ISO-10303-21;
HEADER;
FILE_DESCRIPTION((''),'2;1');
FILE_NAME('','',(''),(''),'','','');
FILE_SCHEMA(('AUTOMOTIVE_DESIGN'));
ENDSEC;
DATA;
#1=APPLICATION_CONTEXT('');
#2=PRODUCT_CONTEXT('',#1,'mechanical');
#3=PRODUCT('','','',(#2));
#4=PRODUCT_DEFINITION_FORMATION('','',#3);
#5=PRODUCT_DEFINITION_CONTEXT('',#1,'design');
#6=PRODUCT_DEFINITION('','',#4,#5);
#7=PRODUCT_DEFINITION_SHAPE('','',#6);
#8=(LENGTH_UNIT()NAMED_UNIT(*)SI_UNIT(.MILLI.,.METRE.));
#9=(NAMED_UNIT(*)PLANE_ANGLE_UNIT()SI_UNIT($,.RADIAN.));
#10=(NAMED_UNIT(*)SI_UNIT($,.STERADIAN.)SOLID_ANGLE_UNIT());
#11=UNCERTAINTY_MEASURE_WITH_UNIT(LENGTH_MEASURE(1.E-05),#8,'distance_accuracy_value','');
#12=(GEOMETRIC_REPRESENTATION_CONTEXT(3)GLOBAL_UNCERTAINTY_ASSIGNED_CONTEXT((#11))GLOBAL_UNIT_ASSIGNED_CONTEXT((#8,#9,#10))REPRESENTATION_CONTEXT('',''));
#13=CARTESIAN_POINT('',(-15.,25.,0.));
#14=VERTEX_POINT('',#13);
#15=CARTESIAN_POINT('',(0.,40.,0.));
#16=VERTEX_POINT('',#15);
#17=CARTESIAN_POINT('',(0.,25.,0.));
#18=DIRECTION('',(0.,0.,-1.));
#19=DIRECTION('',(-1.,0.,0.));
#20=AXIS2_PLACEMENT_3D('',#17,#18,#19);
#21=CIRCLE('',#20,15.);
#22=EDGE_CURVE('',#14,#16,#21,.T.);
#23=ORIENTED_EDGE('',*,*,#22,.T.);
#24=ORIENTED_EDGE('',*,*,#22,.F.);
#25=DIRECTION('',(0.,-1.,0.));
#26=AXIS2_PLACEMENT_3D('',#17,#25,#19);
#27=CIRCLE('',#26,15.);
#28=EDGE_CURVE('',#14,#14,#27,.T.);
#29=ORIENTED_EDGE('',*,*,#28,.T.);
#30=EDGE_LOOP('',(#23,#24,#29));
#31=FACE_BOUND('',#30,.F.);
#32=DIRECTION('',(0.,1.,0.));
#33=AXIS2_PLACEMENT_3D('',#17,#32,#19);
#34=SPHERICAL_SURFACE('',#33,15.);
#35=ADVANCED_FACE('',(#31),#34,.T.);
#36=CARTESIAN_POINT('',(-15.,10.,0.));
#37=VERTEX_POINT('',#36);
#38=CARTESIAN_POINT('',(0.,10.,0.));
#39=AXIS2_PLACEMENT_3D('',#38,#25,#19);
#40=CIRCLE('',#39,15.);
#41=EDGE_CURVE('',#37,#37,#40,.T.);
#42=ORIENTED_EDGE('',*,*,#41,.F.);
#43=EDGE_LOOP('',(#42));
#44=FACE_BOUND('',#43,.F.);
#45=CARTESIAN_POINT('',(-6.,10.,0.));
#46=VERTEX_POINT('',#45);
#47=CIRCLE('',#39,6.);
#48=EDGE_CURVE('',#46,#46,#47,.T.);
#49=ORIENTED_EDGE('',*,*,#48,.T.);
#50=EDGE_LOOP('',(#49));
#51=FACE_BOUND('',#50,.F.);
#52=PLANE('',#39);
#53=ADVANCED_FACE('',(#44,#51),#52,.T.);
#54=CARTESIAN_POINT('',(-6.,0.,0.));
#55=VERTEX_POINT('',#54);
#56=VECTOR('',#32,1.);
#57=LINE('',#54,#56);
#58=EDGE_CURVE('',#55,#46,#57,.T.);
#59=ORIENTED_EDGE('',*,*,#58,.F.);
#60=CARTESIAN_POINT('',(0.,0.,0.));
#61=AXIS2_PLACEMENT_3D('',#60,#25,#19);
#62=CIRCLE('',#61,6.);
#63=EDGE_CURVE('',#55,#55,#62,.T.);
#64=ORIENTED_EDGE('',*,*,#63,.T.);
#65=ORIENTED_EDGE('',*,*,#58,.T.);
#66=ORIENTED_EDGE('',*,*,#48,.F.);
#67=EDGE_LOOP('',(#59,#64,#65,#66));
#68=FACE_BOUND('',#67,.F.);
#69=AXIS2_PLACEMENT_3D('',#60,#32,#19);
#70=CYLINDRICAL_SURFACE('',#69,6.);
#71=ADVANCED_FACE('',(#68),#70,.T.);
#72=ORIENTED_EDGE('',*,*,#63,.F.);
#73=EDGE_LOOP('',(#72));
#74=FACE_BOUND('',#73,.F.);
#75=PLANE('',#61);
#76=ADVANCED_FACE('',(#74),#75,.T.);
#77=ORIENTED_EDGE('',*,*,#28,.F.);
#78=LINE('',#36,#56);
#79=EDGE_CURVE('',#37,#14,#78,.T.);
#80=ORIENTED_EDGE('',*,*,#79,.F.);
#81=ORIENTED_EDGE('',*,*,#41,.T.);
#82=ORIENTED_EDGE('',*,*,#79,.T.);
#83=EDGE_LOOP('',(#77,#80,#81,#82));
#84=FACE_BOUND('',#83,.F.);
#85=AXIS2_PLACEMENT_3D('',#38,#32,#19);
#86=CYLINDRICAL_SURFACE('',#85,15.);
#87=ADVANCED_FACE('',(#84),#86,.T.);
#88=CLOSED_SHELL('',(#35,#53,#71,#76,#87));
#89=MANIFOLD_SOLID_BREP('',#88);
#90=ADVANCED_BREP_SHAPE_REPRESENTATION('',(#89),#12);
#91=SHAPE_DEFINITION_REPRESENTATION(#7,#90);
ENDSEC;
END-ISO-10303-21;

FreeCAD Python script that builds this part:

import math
import FreeCAD as App
import Part
import Sketcher
from FreeCAD import Vector
Q = App.Units.Quantity

doc = App.newDocument("Part")
body = doc.addObject("PartDesign::Body", "Body")

# Sketch on XY plane
sketch1 = doc.addObject("Sketcher::SketchObject", "Sketch")
body.addObject(sketch1)
sketch1.AttachmentSupport = (doc.XY_Plane, [""])
sketch1.MapMode = "FlatFace"
sketch1.addGeometry([
    Part.LineSegment(Vector(-6, 0, 0), Vector(0, 0, 0)),  # 0
    Part.LineSegment(Vector(0, 0, 0), Vector(0, 40, 0)),  # 1
    Part.ArcOfCircle(Part.Circle(Vector(0, 25, 0), Vector(0, 0, 1), 15), math.radians(90), math.radians(180)),  # 2
    Part.LineSegment(Vector(-15, 25, 0), Vector(-15, 10, 0)),  # 3
    Part.LineSegment(Vector(-15, 10, 0), Vector(-6, 10, 0)),  # 4
    Part.LineSegment(Vector(-6, 10, 0), Vector(-6, 0, 0)),  # 5
], False)
sketch1.addConstraint([
    Sketcher.Constraint("Coincident", 0, 2, 1, 1),
    Sketcher.Constraint("Coincident", 1, 2, 2, 1),
    Sketcher.Constraint("Tangent", 2, 2, 3, 1),
    Sketcher.Constraint("Coincident", 3, 2, 4, 1),
    Sketcher.Constraint("Coincident", 4, 2, 5, 1),
    Sketcher.Constraint("Coincident", 5, 2, 0, 1),
    Sketcher.Constraint("Horizontal", 0),
    Sketcher.Constraint("Vertical", 1),
    Sketcher.Constraint("Vertical", 3),
    Sketcher.Constraint("Horizontal", 4),
    Sketcher.Constraint("Vertical", 5),
    Sketcher.Constraint("Coincident", 0, 2, -1, 1),
    Sketcher.Constraint("PointOnObject", 2, 3, -2),
    Sketcher.Constraint("Radius", 2, Q("15 mm")),
    Sketcher.Constraint("DistanceX", 0, 1, 0, 2, Q("6 mm")),
    Sketcher.Constraint("DistanceY", 1, 1, 1, 2, Q("40 mm")),
    Sketcher.Constraint("DistanceY", 3, 2, 3, 1, Q("15 mm")),
])
revolution = doc.addObject("PartDesign::Revolution", "Revolution")
body.addObject(revolution)
revolution.Profile = sketch1
revolution.ReferenceAxis = (sketch1, ["V_Axis"])
revolution.Angle = 360

doc.recompute()
